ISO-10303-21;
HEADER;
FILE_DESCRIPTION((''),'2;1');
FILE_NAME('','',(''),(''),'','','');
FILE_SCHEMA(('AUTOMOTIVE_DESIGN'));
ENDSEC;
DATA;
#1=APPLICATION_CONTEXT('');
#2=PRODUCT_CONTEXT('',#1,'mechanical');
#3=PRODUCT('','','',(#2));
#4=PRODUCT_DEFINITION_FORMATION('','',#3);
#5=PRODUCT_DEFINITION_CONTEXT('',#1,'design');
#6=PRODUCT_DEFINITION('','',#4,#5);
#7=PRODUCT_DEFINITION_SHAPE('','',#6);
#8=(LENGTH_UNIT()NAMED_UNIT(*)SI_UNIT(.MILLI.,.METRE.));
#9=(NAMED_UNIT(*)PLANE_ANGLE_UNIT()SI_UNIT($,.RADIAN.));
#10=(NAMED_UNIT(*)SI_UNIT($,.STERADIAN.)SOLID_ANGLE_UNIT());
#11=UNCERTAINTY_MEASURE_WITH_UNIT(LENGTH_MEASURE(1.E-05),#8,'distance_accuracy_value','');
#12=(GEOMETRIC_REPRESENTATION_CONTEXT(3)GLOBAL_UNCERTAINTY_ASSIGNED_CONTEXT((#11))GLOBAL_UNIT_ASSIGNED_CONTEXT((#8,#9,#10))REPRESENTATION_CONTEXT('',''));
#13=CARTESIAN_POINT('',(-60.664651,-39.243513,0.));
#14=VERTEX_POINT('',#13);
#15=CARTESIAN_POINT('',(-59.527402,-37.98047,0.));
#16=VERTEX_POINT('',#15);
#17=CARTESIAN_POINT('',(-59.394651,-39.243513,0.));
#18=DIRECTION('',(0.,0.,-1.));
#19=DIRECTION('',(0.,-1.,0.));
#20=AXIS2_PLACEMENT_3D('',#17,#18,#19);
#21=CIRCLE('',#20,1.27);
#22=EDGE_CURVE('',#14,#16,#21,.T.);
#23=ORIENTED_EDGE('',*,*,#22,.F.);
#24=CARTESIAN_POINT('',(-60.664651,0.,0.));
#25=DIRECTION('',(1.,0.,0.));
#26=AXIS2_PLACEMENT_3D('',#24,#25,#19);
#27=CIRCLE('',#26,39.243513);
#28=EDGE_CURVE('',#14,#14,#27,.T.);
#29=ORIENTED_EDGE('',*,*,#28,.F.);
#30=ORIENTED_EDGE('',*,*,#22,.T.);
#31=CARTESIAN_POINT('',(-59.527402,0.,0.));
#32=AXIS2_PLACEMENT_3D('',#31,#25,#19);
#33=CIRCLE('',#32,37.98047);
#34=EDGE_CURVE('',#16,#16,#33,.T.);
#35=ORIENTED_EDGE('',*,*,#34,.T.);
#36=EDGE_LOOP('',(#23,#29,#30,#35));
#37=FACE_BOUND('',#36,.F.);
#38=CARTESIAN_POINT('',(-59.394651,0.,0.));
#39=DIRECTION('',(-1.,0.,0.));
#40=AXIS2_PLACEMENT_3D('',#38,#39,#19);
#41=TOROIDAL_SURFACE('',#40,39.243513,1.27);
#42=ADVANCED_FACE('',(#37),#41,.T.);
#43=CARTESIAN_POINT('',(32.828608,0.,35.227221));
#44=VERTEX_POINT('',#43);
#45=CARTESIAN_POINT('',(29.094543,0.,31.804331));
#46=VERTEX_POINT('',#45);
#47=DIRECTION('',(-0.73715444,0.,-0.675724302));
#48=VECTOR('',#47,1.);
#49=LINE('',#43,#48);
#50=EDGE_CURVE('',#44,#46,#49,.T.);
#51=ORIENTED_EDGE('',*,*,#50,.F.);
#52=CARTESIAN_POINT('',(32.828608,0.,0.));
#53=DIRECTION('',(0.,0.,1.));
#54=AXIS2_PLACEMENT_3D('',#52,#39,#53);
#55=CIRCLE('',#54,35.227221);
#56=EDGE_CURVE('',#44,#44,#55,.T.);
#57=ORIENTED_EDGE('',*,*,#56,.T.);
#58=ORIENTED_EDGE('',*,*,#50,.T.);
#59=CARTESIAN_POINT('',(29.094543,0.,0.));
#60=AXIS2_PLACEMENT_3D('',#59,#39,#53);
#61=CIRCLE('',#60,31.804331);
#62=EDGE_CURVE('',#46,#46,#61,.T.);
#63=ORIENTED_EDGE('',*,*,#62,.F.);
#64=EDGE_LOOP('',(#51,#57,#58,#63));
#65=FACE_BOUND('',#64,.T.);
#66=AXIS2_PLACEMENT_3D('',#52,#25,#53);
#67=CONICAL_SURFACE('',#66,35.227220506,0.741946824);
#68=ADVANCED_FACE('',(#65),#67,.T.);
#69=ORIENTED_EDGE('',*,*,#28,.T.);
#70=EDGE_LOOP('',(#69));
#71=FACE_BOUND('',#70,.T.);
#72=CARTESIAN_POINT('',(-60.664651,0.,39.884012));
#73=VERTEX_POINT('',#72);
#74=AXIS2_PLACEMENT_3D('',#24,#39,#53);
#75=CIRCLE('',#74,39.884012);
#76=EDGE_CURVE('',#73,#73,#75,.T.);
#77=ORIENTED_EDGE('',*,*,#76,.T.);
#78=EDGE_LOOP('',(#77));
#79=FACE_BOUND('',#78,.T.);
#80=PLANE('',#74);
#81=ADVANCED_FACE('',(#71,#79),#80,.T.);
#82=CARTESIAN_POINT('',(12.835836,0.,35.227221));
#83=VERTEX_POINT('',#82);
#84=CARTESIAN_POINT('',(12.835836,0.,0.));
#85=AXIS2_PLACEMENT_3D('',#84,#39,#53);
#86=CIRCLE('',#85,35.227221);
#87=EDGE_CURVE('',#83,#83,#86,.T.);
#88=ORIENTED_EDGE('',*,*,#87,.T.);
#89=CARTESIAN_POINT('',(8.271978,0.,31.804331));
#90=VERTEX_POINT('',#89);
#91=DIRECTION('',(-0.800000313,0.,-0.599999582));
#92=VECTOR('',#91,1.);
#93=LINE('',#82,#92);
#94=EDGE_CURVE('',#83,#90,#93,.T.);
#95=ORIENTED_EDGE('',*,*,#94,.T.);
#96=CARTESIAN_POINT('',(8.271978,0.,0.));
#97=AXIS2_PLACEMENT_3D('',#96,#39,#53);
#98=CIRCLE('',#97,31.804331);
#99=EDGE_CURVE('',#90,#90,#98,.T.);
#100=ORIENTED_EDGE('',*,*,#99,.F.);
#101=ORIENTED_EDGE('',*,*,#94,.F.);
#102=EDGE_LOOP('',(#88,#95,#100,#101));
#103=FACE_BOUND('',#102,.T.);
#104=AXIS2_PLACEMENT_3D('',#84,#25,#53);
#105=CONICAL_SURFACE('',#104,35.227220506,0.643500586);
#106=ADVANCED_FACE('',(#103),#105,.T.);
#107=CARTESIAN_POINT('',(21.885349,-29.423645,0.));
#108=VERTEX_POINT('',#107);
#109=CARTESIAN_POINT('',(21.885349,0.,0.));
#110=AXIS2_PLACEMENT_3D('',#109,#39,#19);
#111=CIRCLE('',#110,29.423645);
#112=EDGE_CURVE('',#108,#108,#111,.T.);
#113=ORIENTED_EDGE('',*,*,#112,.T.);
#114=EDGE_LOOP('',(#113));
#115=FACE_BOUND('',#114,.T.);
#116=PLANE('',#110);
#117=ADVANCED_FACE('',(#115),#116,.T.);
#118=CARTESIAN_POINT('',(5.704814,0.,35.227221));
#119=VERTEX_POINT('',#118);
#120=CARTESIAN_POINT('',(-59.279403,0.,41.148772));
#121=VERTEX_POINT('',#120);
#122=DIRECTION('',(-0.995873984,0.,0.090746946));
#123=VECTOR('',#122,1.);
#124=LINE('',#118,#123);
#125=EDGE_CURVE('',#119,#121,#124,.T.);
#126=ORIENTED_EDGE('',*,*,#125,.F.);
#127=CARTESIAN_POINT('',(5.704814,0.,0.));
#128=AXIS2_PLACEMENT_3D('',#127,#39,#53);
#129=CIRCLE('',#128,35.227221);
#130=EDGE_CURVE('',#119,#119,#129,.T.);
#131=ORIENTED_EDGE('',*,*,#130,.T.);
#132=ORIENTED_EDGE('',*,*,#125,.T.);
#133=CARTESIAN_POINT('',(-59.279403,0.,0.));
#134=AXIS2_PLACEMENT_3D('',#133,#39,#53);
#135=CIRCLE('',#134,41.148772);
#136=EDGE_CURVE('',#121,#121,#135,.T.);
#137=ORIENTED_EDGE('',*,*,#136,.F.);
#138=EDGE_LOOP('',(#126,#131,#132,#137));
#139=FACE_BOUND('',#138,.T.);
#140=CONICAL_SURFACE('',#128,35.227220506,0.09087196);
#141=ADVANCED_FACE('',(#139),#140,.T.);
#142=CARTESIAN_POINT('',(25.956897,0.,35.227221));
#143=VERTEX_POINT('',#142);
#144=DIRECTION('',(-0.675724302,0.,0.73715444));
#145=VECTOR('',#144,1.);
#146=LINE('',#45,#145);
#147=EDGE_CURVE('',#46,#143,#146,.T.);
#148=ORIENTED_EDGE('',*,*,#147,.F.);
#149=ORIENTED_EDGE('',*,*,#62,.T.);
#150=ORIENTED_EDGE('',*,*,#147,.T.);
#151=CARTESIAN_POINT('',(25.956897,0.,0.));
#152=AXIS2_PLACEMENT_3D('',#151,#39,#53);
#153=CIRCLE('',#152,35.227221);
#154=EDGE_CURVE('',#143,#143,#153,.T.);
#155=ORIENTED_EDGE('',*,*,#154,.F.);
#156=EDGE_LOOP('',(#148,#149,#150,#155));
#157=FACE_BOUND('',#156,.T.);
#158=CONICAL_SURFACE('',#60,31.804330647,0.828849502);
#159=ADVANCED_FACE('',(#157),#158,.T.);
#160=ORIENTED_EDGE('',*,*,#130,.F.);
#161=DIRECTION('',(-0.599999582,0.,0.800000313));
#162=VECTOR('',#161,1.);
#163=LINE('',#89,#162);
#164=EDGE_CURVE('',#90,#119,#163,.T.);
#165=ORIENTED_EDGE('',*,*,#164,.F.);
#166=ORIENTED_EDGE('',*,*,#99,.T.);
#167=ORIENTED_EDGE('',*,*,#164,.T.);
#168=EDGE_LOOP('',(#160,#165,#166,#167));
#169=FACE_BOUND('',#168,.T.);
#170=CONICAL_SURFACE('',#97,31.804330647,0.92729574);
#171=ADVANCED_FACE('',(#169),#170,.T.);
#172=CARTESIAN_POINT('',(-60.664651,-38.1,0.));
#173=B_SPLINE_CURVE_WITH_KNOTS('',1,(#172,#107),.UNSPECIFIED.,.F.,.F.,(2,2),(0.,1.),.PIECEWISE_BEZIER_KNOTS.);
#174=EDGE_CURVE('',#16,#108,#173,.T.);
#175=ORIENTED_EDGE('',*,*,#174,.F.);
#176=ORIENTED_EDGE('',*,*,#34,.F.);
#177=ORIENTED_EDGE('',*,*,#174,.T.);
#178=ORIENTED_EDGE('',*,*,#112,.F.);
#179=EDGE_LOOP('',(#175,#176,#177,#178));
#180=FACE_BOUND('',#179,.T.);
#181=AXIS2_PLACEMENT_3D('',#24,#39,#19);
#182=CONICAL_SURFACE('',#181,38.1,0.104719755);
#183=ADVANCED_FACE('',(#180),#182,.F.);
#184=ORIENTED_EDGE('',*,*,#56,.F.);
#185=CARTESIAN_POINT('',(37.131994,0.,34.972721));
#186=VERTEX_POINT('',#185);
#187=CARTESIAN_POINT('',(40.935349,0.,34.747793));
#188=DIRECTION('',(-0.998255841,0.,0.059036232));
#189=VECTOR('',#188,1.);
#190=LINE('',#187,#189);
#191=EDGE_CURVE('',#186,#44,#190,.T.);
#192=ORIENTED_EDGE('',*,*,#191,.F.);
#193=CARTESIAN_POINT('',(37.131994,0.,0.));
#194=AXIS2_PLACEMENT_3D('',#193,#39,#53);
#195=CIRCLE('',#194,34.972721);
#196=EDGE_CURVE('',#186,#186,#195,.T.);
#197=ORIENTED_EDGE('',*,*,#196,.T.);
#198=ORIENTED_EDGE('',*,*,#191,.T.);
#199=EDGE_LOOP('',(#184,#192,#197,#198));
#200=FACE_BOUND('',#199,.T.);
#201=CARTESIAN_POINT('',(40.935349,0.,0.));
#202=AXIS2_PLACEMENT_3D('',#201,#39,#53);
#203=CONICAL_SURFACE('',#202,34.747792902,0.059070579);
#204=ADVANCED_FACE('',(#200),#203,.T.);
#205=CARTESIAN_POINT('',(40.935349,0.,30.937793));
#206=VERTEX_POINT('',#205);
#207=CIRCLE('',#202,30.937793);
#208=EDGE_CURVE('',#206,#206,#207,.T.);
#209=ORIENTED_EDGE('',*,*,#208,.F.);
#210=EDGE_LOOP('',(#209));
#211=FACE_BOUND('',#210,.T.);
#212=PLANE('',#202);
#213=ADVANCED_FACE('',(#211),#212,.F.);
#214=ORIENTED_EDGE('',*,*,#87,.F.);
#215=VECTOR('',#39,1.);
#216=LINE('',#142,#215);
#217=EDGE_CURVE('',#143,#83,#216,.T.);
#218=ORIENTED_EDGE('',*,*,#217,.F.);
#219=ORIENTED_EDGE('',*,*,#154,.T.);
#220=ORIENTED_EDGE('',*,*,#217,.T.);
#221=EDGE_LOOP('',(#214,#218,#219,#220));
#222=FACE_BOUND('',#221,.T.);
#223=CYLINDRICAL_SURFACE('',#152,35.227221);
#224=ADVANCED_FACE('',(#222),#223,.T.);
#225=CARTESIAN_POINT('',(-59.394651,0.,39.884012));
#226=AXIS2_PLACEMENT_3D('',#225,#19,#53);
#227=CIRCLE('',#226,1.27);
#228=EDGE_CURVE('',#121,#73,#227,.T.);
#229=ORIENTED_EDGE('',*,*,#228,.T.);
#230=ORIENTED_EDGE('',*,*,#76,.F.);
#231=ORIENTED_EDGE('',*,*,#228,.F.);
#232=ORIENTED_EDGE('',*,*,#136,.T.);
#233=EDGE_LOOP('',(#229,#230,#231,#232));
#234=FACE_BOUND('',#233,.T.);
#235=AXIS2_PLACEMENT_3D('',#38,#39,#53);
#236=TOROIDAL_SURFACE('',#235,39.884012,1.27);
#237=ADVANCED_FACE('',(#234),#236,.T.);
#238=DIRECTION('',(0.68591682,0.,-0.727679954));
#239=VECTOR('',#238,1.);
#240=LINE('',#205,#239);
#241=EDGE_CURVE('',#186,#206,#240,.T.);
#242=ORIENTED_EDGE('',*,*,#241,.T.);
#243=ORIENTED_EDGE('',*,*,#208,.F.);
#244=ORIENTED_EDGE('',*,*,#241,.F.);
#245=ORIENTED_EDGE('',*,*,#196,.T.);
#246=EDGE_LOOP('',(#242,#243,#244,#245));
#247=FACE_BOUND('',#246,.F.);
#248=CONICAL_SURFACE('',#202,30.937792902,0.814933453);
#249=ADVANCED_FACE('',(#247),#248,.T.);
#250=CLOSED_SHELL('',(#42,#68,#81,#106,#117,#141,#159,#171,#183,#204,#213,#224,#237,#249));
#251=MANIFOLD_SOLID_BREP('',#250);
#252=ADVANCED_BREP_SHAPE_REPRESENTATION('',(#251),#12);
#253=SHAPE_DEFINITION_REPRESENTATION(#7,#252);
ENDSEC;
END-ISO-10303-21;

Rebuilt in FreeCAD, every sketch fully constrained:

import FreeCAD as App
import Part
import Sketcher

V = App.Vector
Q = App.Units.Quantity


def edges_at(feature, points):
    """Names of the edges that pass closest to the given points."""
    edges = feature.Shape.Edges
    near = lambda p: min(range(len(edges)), key=lambda i: edges[i].distToShape(Part.Vertex(*p))[0])
    return sorted({f"Edge{near(p) + 1}" for p in points})


def add_polygon(sketch, points):
    """Adds a closed chain of lines whose ends are joined by coincident constraints."""
    first, n = sketch.GeometryCount, len(points)
    for a, b in zip(points, points[1:] + points[:1]):
        sketch.addGeometry(Part.LineSegment(App.Vector(*a, 0), App.Vector(*b, 0)), False)
    for i in range(n):
        sketch.addConstraint(Sketcher.Constraint("Coincident", first + i, 2, first + (i + 1) % n, 1))

doc = App.newDocument("Part")
params = doc.addObject("Spreadsheet::Sheet", "Params")
for row, (alias, value) in enumerate([
    ("sketch1_width", "4 in"),
    ("sketch1_height", "1.625 in"),
    ("revolution_angle", "360 deg"),
    ("sketch2_diameter", "3 in"),
    ("pocket1_length", "3.25 in"),
    ("pocket1_taper", "-6 deg"),
    ("chamfer_size", "0.15 in"),
    ("fillet_radius", "0.05 in"),
    ("fillet2_radius", "0.05 in"),
], start=1):
    params.set(f"A{row}", alias)
    params.set(f"B{row}", "=" + value)
    params.setAlias(f"B{row}", alias)

body = doc.addObject("PartDesign::Body", "Body")

# Sketch on XZ plane
sketch1 = body.newObject("Sketcher::SketchObject", "Sketch")
sketch1.AttachmentSupport = (doc.getObject("XZ_Plane"), [""])
sketch1.MapMode = "FlatFace"
add_polygon(sketch1, [(-60.664651, 41.275), (-60.664651, 0), (40.935349, 0), (40.935349, 34.747793), (32.828608, 35.227221), (29.094543, 31.804331), (25.956897, 35.227221), (12.835836, 35.227221), (8.271978, 31.804331), (5.704814, 35.227221)])  # lines 0-9
sketch1.addConstraint([
    Sketcher.Constraint("Vertical", 0),
    Sketcher.Constraint("Horizontal", 1),
    Sketcher.Constraint("Vertical", 2),
    Sketcher.Constraint("Horizontal", 6),
    Sketcher.Constraint("PointOnObject", 0, 2, -1),
    Sketcher.Constraint("Perpendicular", 4, 5),
    Sketcher.Constraint("Perpendicular", 7, 8),
    Sketcher.Constraint("Horizontal", 3, 2, 5, 2),
    Sketcher.Constraint("Horizontal", 4, 2, 7, 2),
    Sketcher.Constraint("Horizontal", 6, 2, 8, 2),
    Sketcher.Constraint("DistanceX", 1, 1, 1, 2, Q("4 in")),
    Sketcher.Constraint("DistanceY", 0, 2, 0, 1, Q("1.625 in")),
    Sketcher.Constraint("DistanceX", 6, 2, 6, 1, Q("13.121061 mm")),
    Sketcher.Constraint("Distance", 7, Q("5.70482 mm")),
    Sketcher.Constraint("Distance", 8, Q("4.278611 mm")),
    Sketcher.Constraint("Distance", 9, Q("66.644441 mm")),
    Sketcher.Constraint("DistanceY", 2, 1, 2, 2, Q("34.747793 mm")),
    Sketcher.Constraint("DistanceX", 0, 2, -1, 1, Q("60.664651 mm")),
    Sketcher.Constraint("DistanceX", -1, 1, 3, 2, Q("32.828608 mm")),
    Sketcher.Constraint("DistanceY", -1, 1, 3, 2, Q("35.227221 mm")),
])
sketch1.setExpression("Constraints[20]", "Params.sketch1_width")
sketch1.setExpression("Constraints[21]", "Params.sketch1_height")
revolution = body.newObject("PartDesign::Revolution", "Revolution")
revolution.Profile = sketch1
revolution.ReferenceAxis = (sketch1, ["H_Axis"])
revolution.setExpression("Angle", "Params.revolution_angle")

# Sketch on YZ plane
sketch2 = body.newObject("Sketcher::SketchObject", "Sketch001")
sketch2.AttachmentSupport = (doc.getObject("YZ_Plane"), [""])
sketch2.MapMode = "FlatFace"
sketch2.AttachmentOffset = App.Placement(V(0, 0, -60.664651), App.Rotation())
sketch2.addGeometry(Part.Circle(V(0, 0, 0), V(0, 0, 1), 38.1), False)
sketch2.addConstraint([
    Sketcher.Constraint("Coincident", 0, 3, -1, 1),
    Sketcher.Constraint("Diameter", 0, Q("3 in")),
])
sketch2.setExpression("Constraints[1]", "Params.sketch2_diameter")
pocket1 = body.newObject("PartDesign::Pocket", "Pocket")
pocket1.Profile = sketch2
pocket1.setExpression("Length", "Params.pocket1_length")
pocket1.Reversed = True
pocket1.setExpression("TaperAngle", "Params.pocket1_taper")
doc.recompute()

chamfer = body.newObject("PartDesign::Chamfer", "Chamfer")
chamfer.Base = (pocket1, edges_at(pocket1, [(40.935, 0, -34.748)]))
chamfer.setExpression("Size", "Params.chamfer_size")
doc.recompute()

fillet = body.newObject("PartDesign::Fillet", "Fillet")
fillet.Base = (chamfer, edges_at(chamfer, [(-60.665, 0, -41.275)]))
fillet.setExpression("Radius", "Params.fillet_radius")
doc.recompute()

fillet2 = body.newObject("PartDesign::Fillet", "Fillet001")
fillet2.Base = (fillet, edges_at(fillet, [(-60.665, 0, -39.884), (-60.665, 38.1, 0)]))
fillet2.setExpression("Radius", "Params.fillet2_radius")

doc.recompute()
